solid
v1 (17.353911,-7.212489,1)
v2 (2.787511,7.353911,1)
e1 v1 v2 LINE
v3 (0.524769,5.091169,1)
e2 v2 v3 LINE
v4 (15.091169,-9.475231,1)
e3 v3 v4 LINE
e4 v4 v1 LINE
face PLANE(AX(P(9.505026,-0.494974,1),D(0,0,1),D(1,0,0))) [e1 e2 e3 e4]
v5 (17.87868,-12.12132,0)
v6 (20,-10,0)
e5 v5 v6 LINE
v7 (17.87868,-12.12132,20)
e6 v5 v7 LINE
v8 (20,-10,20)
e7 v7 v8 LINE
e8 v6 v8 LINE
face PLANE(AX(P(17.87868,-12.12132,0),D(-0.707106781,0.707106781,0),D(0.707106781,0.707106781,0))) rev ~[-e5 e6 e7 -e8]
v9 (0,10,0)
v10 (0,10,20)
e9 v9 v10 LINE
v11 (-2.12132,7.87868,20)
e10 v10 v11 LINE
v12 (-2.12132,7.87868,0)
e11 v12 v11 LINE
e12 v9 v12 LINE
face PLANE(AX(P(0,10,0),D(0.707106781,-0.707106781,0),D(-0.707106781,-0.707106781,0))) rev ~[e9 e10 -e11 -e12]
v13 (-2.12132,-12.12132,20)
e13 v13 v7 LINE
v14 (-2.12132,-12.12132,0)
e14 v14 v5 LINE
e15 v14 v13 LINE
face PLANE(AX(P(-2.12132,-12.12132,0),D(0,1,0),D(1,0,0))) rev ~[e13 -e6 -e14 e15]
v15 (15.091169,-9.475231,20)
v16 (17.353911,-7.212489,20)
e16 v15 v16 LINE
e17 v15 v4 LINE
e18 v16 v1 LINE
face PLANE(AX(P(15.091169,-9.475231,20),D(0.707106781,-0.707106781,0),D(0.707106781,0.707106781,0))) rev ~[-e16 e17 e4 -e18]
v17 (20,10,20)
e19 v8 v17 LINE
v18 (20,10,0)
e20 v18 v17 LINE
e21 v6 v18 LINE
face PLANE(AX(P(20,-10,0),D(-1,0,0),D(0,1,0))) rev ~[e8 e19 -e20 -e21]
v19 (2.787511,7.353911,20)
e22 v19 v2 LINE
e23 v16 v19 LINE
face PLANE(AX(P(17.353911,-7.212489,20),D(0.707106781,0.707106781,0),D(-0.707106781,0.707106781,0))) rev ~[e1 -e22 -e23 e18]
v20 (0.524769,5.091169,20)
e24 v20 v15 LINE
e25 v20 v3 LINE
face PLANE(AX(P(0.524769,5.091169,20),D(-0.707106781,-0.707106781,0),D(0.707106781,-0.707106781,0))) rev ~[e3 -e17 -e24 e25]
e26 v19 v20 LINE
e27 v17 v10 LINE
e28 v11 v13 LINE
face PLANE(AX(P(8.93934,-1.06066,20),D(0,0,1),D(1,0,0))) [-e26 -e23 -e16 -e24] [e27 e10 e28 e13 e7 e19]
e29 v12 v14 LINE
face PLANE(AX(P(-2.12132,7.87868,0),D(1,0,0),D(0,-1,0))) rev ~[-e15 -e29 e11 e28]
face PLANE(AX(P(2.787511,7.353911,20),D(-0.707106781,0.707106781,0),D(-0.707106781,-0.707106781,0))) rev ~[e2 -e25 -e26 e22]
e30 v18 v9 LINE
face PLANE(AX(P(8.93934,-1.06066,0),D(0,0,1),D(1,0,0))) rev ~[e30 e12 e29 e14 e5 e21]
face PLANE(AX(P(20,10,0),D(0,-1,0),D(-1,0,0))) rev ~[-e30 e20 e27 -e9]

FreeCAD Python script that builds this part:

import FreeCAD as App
import Part
import Sketcher

V = App.Vector
Q = App.Units.Quantity

doc = App.newDocument("Part")
body = doc.addObject("PartDesign::Body", "Body")

# Sketch on XY plane
sketch1 = body.newObject("Sketcher::SketchObject", "Sketch")
sketch1.AttachmentSupport = (doc.getObject("XY_Plane"), [""])
sketch1.MapMode = "FlatFace"
sketch1.addGeometry(Part.LineSegment(V(20, 10, 0), V(0, 10, 0)), False)
sketch1.addGeometry(Part.LineSegment(V(0, 10, 0), V(-2.1, 7.9, 0)), False)
sketch1.addGeometry(Part.LineSegment(V(-2.1, 7.9, 0), V(-2.1, -12.1, 0)), False)
sketch1.addGeometry(Part.LineSegment(V(-2.1, -12.1, 0), V(17.9, -12.1, 0)), False)
sketch1.addGeometry(Part.LineSegment(V(17.9, -12.1, 0), V(20, -10, 0)), False)
sketch1.addGeometry(Part.LineSegment(V(20, -10, 0), V(20, 10, 0)), False)
sketch1.addConstraint(Sketcher.Constraint("Coincident", 0, 2, 1, 1))
sketch1.addConstraint(Sketcher.Constraint("Coincident", 1, 2, 2, 1))
sketch1.addConstraint(Sketcher.Constraint("Coincident", 2, 2, 3, 1))
sketch1.addConstraint(Sketcher.Constraint("Coincident", 3, 2, 4, 1))
sketch1.addConstraint(Sketcher.Constraint("Coincident", 4, 2, 5, 1))
sketch1.addConstraint(Sketcher.Constraint("Coincident", 5, 2, 0, 1))
sketch1.addConstraint(Sketcher.Constraint("Horizontal", 0))
sketch1.addConstraint(Sketcher.Constraint("Vertical", 2))
sketch1.addConstraint(Sketcher.Constraint("Horizontal", 3))
sketch1.addConstraint(Sketcher.Constraint("Vertical", 5))
sketch1.addConstraint(Sketcher.Constraint("PointOnObject", 0, 2, -2))
sketch1.addConstraint(Sketcher.Constraint("Parallel", 1, 4))
sketch1.addConstraint(Sketcher.Constraint("Equal", 0, 3))
sketch1.addConstraint(Sketcher.Constraint("Equal", 3, 2))
sketch1.addConstraint(Sketcher.Constraint("DistanceX", 0, 2, 0, 1, Q("20 mm")))
sketch1.addConstraint(Sketcher.Constraint("Angle", 1, Q("-135 deg")))
sketch1.addConstraint(Sketcher.Constraint("Distance", 1, Q("3 mm")))
sketch1.addConstraint(Sketcher.Constraint("DistanceY", -1, 1, 0, 2, Q("10 mm")))
pad1 = body.newObject("PartDesign::Pad", "Pad")
pad1.Profile = sketch1
pad1.Length = 20

# Sketch on XY plane
sketch2 = body.newObject("Sketcher::SketchObject", "Sketch001")
sketch2.AttachmentSupport = (doc.getObject("XY_Plane"), [""])
sketch2.MapMode = "FlatFace"
sketch2.AttachmentOffset = App.Placement(V(0, 0, 20), App.Rotation())
sketch2.addGeometry(Part.LineSegment(V(2.8, 7.4, 0), V(0.5, 5.1, 0)), False)
sketch2.addGeometry(Part.LineSegment(V(0.5, 5.1, 0), V(15.1, -9.5, 0)), False)
sketch2.addGeometry(Part.LineSegment(V(15.1, -9.5, 0), V(17.4, -7.2, 0)), False)
sketch2.addGeometry(Part.LineSegment(V(17.4, -7.2, 0), V(2.8, 7.4, 0)), False)
sketch2.addConstraint(Sketcher.Constraint("Coincident", 0, 2, 1, 1))
sketch2.addConstraint(Sketcher.Constraint("Coincident", 1, 2, 2, 1))
sketch2.addConstraint(Sketcher.Constraint("Coincident", 2, 2, 3, 1))
sketch2.addConstraint(Sketcher.Constraint("Coincident", 3, 2, 0, 1))
sketch2.addConstraint(Sketcher.Constraint("Perpendicular", 0, 1))
sketch2.addConstraint(Sketcher.Constraint("Perpendicular", 1, 2))
sketch2.addConstraint(Sketcher.Constraint("Perpendicular", 2, 3))
sketch2.addConstraint(Sketcher.Constraint("Angle", 0, Q("-135 deg")))
sketch2.addConstraint(Sketcher.Constraint("Distance", 0, Q("3.2 mm")))
sketch2.addConstraint(Sketcher.Constraint("Distance", 1, Q("20.6 mm")))
sketch2.addConstraint(Sketcher.Constraint("DistanceX", -1, 1, 0, 2, Q("0.524769 mm")))
sketch2.addConstraint(Sketcher.Constraint("DistanceY", -1, 1, 0, 2, Q("5.091169 mm")))
pocket1 = body.newObject("PartDesign::Pocket", "Pocket")
pocket1.Profile = sketch2
pocket1.Length = 19

doc.recompute()
